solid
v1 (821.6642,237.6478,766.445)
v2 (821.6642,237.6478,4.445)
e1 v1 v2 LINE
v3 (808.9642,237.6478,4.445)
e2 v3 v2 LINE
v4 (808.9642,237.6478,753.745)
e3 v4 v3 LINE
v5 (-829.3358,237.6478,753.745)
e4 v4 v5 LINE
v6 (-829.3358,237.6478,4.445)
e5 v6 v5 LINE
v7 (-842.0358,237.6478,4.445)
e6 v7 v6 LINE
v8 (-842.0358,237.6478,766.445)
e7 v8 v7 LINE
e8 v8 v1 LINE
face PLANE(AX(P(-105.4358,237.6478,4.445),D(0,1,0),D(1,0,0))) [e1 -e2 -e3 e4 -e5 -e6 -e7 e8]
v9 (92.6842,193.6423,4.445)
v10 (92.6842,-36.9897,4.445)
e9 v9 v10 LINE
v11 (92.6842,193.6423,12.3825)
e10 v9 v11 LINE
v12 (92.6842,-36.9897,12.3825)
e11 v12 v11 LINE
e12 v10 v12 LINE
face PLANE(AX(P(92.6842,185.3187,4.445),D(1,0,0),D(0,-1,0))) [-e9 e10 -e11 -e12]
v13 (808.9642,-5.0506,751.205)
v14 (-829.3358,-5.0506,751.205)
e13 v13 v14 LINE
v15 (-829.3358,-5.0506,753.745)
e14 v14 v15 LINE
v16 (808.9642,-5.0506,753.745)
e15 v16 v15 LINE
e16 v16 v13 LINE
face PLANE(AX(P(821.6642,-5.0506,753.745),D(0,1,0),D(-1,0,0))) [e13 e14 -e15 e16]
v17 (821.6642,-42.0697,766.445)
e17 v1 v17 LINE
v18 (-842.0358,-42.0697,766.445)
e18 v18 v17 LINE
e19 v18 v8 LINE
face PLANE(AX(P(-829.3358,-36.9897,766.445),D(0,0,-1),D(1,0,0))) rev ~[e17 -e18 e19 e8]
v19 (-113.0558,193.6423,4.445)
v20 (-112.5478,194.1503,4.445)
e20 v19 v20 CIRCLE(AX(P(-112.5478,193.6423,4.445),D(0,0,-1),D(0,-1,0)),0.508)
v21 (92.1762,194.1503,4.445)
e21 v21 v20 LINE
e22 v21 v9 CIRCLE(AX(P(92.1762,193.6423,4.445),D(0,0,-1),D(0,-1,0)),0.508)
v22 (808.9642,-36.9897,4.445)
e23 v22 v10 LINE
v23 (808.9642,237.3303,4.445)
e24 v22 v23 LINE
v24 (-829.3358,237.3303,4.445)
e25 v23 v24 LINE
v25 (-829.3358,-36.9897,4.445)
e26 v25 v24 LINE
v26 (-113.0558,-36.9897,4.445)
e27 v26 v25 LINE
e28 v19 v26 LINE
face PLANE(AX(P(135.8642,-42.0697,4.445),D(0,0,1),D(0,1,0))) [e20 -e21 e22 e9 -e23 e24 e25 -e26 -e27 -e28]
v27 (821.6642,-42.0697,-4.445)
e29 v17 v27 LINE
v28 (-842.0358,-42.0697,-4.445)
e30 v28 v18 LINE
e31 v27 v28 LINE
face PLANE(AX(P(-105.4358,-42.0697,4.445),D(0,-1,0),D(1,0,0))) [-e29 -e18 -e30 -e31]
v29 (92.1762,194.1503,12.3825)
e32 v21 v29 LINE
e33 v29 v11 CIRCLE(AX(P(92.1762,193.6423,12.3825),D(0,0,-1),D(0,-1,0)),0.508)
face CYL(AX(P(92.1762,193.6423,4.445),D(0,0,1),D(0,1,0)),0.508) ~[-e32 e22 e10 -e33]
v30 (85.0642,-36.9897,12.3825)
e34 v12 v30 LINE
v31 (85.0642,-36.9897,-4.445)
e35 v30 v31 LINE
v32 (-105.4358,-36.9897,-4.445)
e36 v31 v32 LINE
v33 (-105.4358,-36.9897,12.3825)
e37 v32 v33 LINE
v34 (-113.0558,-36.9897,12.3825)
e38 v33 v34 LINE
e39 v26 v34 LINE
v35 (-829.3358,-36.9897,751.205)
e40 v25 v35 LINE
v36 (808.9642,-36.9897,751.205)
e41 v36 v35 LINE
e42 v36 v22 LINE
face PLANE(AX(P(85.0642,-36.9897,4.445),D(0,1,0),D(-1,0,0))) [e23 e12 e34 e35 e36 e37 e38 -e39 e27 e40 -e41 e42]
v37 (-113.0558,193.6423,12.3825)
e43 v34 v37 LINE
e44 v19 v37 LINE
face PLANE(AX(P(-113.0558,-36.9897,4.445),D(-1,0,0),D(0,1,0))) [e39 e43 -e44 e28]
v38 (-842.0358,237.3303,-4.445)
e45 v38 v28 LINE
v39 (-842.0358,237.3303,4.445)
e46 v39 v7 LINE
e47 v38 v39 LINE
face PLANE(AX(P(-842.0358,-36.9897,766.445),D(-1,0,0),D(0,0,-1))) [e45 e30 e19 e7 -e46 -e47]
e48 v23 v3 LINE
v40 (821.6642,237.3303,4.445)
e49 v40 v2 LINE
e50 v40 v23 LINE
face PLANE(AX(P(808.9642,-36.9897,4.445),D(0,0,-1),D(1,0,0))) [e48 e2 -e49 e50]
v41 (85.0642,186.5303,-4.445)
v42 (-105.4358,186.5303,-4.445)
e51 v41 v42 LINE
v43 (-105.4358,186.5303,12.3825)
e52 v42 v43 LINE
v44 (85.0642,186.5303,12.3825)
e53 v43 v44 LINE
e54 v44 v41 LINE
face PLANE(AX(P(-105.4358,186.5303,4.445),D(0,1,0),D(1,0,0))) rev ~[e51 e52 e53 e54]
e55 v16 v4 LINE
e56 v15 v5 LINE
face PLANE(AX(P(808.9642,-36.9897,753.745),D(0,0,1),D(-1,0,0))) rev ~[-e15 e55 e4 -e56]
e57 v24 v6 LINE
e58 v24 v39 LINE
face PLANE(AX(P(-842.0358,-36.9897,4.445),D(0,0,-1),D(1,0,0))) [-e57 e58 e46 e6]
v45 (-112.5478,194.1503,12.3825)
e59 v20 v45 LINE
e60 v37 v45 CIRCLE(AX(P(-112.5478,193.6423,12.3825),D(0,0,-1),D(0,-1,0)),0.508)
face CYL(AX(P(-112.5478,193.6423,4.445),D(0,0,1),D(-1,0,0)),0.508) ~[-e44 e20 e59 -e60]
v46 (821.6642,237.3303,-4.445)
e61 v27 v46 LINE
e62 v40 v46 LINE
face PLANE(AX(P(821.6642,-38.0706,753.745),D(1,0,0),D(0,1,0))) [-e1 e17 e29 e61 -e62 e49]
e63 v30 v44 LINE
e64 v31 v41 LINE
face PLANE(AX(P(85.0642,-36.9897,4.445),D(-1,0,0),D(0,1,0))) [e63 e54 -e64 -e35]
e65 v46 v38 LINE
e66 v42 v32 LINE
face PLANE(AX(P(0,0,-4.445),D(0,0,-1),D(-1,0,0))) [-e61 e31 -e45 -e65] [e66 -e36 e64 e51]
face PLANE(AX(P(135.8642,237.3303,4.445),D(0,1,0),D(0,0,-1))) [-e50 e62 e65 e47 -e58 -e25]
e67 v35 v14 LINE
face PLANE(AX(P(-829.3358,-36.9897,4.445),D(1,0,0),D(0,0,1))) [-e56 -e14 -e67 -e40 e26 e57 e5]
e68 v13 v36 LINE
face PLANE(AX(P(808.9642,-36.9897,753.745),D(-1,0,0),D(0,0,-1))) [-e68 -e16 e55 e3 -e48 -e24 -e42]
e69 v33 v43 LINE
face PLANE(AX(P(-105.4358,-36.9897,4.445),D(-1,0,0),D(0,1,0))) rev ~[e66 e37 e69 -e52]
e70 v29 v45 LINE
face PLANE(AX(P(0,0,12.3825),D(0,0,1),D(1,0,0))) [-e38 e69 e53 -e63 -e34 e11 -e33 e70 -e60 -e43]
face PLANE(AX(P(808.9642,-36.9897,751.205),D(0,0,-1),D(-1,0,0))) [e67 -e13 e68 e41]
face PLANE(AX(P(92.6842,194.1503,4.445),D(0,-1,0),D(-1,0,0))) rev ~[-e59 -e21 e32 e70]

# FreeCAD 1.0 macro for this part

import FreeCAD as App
import Part
import Sketcher
from FreeCAD import Vector
Q = App.Units.Quantity


def edges_at(feature, points):
    """Names of the edges that pass closest to the given points."""
    edges = feature.Shape.Edges
    near = lambda p: min(range(len(edges)), key=lambda i: edges[i].distToShape(Part.Vertex(*p))[0])
    return sorted({f"Edge{near(p) + 1}" for p in points})

doc = App.newDocument("Part")
body = doc.addObject("PartDesign::Body", "Body")

# Sketch on XY plane
sketch1 = body.newObject("Sketcher::SketchObject", "Sketch")
sketch1.AttachmentSupport = (doc.getObject("XY_Plane"), [""])
sketch1.MapMode = "FlatFace"
sketch1.addGeometry([
    Part.LineSegment(Vector(-156.2358, -42.0697, 0), Vector(-105.4358, -42.0697, 0)),  # 0
    Part.LineSegment(Vector(-105.4358, -42.0697, 0), Vector(-105.4358, 186.5303, 0)),  # 1
    Part.LineSegment(Vector(-105.4358, 186.5303, 0), Vector(85.0642, 186.5303, 0)),  # 2
    Part.LineSegment(Vector(85.0642, 186.5303, 0), Vector(85.0642, -42.0697, 0)),  # 3
    Part.LineSegment(Vector(85.0642, -42.0697, 0), Vector(135.8642, -42.0697, 0)),  # 4
    Part.LineSegment(Vector(135.8642, -42.0697, 0), Vector(135.8642, 237.3303, 0)),  # 5
    Part.LineSegment(Vector(135.8642, 237.3303, 0), Vector(-156.2358, 237.3303, 0)),  # 6
    Part.LineSegment(Vector(-156.2358, 237.3303, 0), Vector(-156.2358, -42.0697, 0)),  # 7
], False)
sketch1.addConstraint([
    Sketcher.Constraint("Coincident", 0, 2, 1, 1),
    Sketcher.Constraint("Coincident", 1, 2, 2, 1),
    Sketcher.Constraint("Coincident", 2, 2, 3, 1),
    Sketcher.Constraint("Coincident", 3, 2, 4, 1),
    Sketcher.Constraint("Coincident", 4, 2, 5, 1),
    Sketcher.Constraint("Coincident", 5, 2, 6, 1),
    Sketcher.Constraint("Coincident", 6, 2, 7, 1),
    Sketcher.Constraint("Coincident", 7, 2, 0, 1),
    Sketcher.Constraint("Horizontal", 0),
    Sketcher.Constraint("Vertical", 1),
    Sketcher.Constraint("Horizontal", 2),
    Sketcher.Constraint("Vertical", 3),
    Sketcher.Constraint("Horizontal", 4),
    Sketcher.Constraint("Vertical", 5),
    Sketcher.Constraint("Horizontal", 6),
    Sketcher.Constraint("Vertical", 7),
    Sketcher.Constraint("Horizontal", 0, 2, 3, 2),
    Sketcher.Constraint("Equal", 0, 4),
    Sketcher.Constraint("DistanceX", 0, 1, 0, 2, Q("2 in")),
    Sketcher.Constraint("DistanceY", 1, 1, 1, 2, Q("9 in")),
    Sketcher.Constraint("DistanceY", 5, 1, 5, 2, Q("11 in")),
    Sketcher.Constraint("DistanceX", 2, 1, 2, 2, Q("7.5 in")),
    Sketcher.Constraint("DistanceX", 0, 2, -1, 1, 105.4358),
    Sketcher.Constraint("DistanceY", 0, 2, -1, 1, 42.0697),
])
pad1 = body.newObject("PartDesign::Pad", "Pad")
pad1.Profile = sketch1
pad1.Length = Q("0.35 in")
pad1.Midplane = True

# Sketch on YZ plane
sketch2 = body.newObject("Sketcher::SketchObject", "Sketch001")
sketch2.AttachmentSupport = (doc.getObject("YZ_Plane"), [""])
sketch2.MapMode = "FlatFace"
sketch2.AttachmentOffset = App.Placement(Vector(0, 0, -156.2358), App.Rotation())
sketch2.addGeometry([
    Part.LineSegment(Vector(237.3303, 4.445, 0), Vector(237.3303, -4.445, 0)),
    Part.LineSegment(Vector(237.3303, -4.445, 0), Vector(-42.0697, -4.445, 0)),
    Part.LineSegment(Vector(-42.0697, -4.445, 0), Vector(-42.0697, 4.445, 0)),
    Part.LineSegment(Vector(-42.0697, 4.445, 0), Vector(237.3303, 4.445, 0)),
], False)
sketch2.addConstraint([
    Sketcher.Constraint("Coincident", 0, 2, 1, 1),
    Sketcher.Constraint("Coincident", 1, 2, 2, 1),
    Sketcher.Constraint("Coincident", 2, 2, 3, 1),
    Sketcher.Constraint("Coincident", 3, 2, 0, 1),
    Sketcher.Constraint("Vertical", 0),
    Sketcher.Constraint("Horizontal", 1),
    Sketcher.Constraint("Vertical", 2),
    Sketcher.Constraint("Horizontal", 3),
    Sketcher.Constraint("DistanceX", 1, 2, 1, 1, Q("11 in")),
    Sketcher.Constraint("DistanceY", 0, 2, 0, 1, Q("0.35 in")),
    Sketcher.Constraint("DistanceY", 0, 2, -1, 1, Q("0.175 in")),
    Sketcher.Constraint("DistanceX", -1, 1, 0, 2, 237.3303),
])
pad2 = body.newObject("PartDesign::Pad", "Pad001")
pad2.Profile = sketch2
pad2.Length = Q("27 in")
pad2.Reversed = True

# Sketch on YZ plane
sketch3 = body.newObject("Sketcher::SketchObject", "Sketch002")
sketch3.AttachmentSupport = (doc.getObject("YZ_Plane"), [""])
sketch3.MapMode = "FlatFace"
sketch3.AttachmentOffset = App.Placement(Vector(0, 0, 135.8642), App.Rotation())
sketch3.addGeometry([
    Part.LineSegment(Vector(237.3303, 4.445, 0), Vector(-42.0697, 4.445, 0)),
    Part.LineSegment(Vector(-42.0697, 4.445, 0), Vector(-42.0697, -4.445, 0)),
    Part.LineSegment(Vector(-42.0697, -4.445, 0), Vector(237.3303, -4.445, 0)),
    Part.LineSegment(Vector(237.3303, -4.445, 0), Vector(237.3303, 4.445, 0)),
], False)
sketch3.addConstraint([
    Sketcher.Constraint("Coincident", 0, 2, 1, 1),
    Sketcher.Constraint("Coincident", 1, 2, 2, 1),
    Sketcher.Constraint("Coincident", 2, 2, 3, 1),
    Sketcher.Constraint("Coincident", 3, 2, 0, 1),
    Sketcher.Constraint("Horizontal", 0),
    Sketcher.Constraint("Vertical", 1),
    Sketcher.Constraint("Horizontal", 2),
    Sketcher.Constraint("Vertical", 3),
    Sketcher.Constraint("DistanceX", 0, 2, 0, 1, Q("11 in")),
    Sketcher.Constraint("DistanceY", 1, 2, 1, 1, Q("0.35 in")),
    Sketcher.Constraint("DistanceY", -1, 1, 0, 2, Q("0.175 in")),
    Sketcher.Constraint("DistanceX", 0, 2, -1, 1, 42.0697),
])
pad3 = body.newObject("PartDesign::Pad", "Pad002")
pad3.Profile = sketch3
pad3.Length = Q("27 in")

# Sketch on XY plane
sketch4 = body.newObject("Sketcher::SketchObject", "Sketch003")
sketch4.AttachmentSupport = (doc.getObject("XY_Plane"), [""])
sketch4.MapMode = "FlatFace"
sketch4.AttachmentOffset = App.Placement(Vector(0, 0, 0.175 * 25.4), App.Rotation())
sketch4.addGeometry([
    Part.LineSegment(Vector(821.6642, -36.9897, 0), Vector(-842.0358, -36.9897, 0)),
    Part.LineSegment(Vector(-842.0358, -36.9897, 0), Vector(-842.0358, -42.0697, 0)),
    Part.LineSegment(Vector(-842.0358, -42.0697, 0), Vector(821.6642, -42.0697, 0)),
    Part.LineSegment(Vector(821.6642, -42.0697, 0), Vector(821.6642, -36.9897, 0)),
], False)
sketch4.addConstraint([
    Sketcher.Constraint("Coincident", 0, 2, 1, 1),
    Sketcher.Constraint("Coincident", 1, 2, 2, 1),
    Sketcher.Constraint("Coincident", 2, 2, 3, 1),
    Sketcher.Constraint("Coincident", 3, 2, 0, 1),
    Sketcher.Constraint("Horizontal", 0),
    Sketcher.Constraint("Vertical", 1),
    Sketcher.Constraint("Horizontal", 2),
    Sketcher.Constraint("Vertical", 3),
    Sketcher.Constraint("DistanceY", 1, 2, 1, 1, Q("0.2 in")),
    Sketcher.Constraint("DistanceX", 0, 2, 0, 1, Q("65.5 in")),
    Sketcher.Constraint("DistanceX", 0, 2, -1, 1, 842.0358),
    Sketcher.Constraint("DistanceY", 0, 2, -1, 1, 36.9897),
])
pad4 = body.newObject("PartDesign::Pad", "Pad003")
pad4.Profile = sketch4
pad4.Length = Q("30 in")

# Sketch on XZ plane
sketch5 = body.newObject("Sketcher::SketchObject", "Sketch004")
sketch5.AttachmentSupport = (doc.getObject("XZ_Plane"), [""])
sketch5.MapMode = "FlatFace"
sketch5.AttachmentOffset = App.Placement(Vector(0, 0, 36.9897), App.Rotation())
sketch5.addGeometry([
    Part.LineSegment(Vector(-829.3358, 4.445, 0), Vector(-842.0358, 4.445, 0)),  # 0
    Part.LineSegment(Vector(-842.0358, 4.445, 0), Vector(-842.0358, 766.445, 0)),  # 1
    Part.LineSegment(Vector(-842.0358, 766.445, 0), Vector(821.6642, 766.445, 0)),  # 2
    Part.LineSegment(Vector(821.6642, 766.445, 0), Vector(821.6642, 4.445, 0)),  # 3
    Part.LineSegment(Vector(821.6642, 4.445, 0), Vector(808.9642, 4.445, 0)),  # 4
    Part.LineSegment(Vector(808.9642, 4.445, 0), Vector(808.9642, 753.745, 0)),  # 5
    Part.LineSegment(Vector(808.9642, 753.745, 0), Vector(-829.3358, 753.745, 0)),  # 6
    Part.LineSegment(Vector(-829.3358, 753.745, 0), Vector(-829.3358, 4.445, 0)),  # 7
], False)
sketch5.addConstraint([
    Sketcher.Constraint("Coincident", 0, 2, 1, 1),
    Sketcher.Constraint("Coincident", 1, 2, 2, 1),
    Sketcher.Constraint("Coincident", 2, 2, 3, 1),
    Sketcher.Constraint("Coincident", 3, 2, 4, 1),
    Sketcher.Constraint("Coincident", 4, 2, 5, 1),
    Sketcher.Constraint("Coincident", 5, 2, 6, 1),
    Sketcher.Constraint("Coincident", 6, 2, 7, 1),
    Sketcher.Constraint("Coincident", 7, 2, 0, 1),
    Sketcher.Constraint("Horizontal", 0),
    Sketcher.Constraint("Vertical", 1),
    Sketcher.Constraint("Horizontal", 2),
    Sketcher.Constraint("Vertical", 3),
    Sketcher.Constraint("Horizontal", 4),
    Sketcher.Constraint("Vertical", 5),
    Sketcher.Constraint("Horizontal", 6),
    Sketcher.Constraint("Vertical", 7),
    Sketcher.Constraint("Horizontal", 0, 2, 3, 2),
    Sketcher.Constraint("Equal", 0, 4),
    Sketcher.Constraint("DistanceX", 0, 2, 0, 1, Q("0.5 in")),
    Sketcher.Constraint("DistanceY", 5, 2, 2, 2, Q("0.5 in")),
    Sketcher.Constraint("DistanceY", 1, 1, 1, 2, Q("30 in")),
    Sketcher.Constraint("DistanceX", 2, 1, 2, 2, Q("65.5 in")),
    Sketcher.Constraint("DistanceY", -1, 1, 0, 2, Q("0.175 in")),
    Sketcher.Constraint("DistanceX", 0, 2, -1, 1, 842.0358),
])
pad5 = body.newObject("PartDesign::Pad", "Pad004")
pad5.Profile = sketch5
pad5.Length = Q("10.8125 in")
pad5.Reversed = True

# Sketch on XY plane
sketch6 = body.newObject("Sketcher::SketchObject", "Sketch005")
sketch6.AttachmentSupport = (doc.getObject("XY_Plane"), [""])
sketch6.MapMode = "FlatFace"
sketch6.AttachmentOffset = App.Placement(Vector(0, 0, 0.175 * 25.4), App.Rotation())
sketch6.addGeometry([
    Part.LineSegment(Vector(-113.0558, -36.9897, 0), Vector(-105.4358, -36.9897, 0)),  # 0
    Part.LineSegment(Vector(-105.4358, -36.9897, 0), Vector(-105.4358, 186.5303, 0)),  # 1
    Part.LineSegment(Vector(-105.4358, 186.5303, 0), Vector(85.0642, 186.5303, 0)),  # 2
    Part.LineSegment(Vector(85.0642, 186.5303, 0), Vector(85.0642, -36.9897, 0)),  # 3
    Part.LineSegment(Vector(85.0642, -36.9897, 0), Vector(92.6842, -36.9897, 0)),  # 4
    Part.LineSegment(Vector(92.6842, -36.9897, 0), Vector(92.6842, 194.1503, 0)),  # 5
    Part.LineSegment(Vector(92.6842, 194.1503, 0), Vector(-113.0558, 194.1503, 0)),  # 6
    Part.LineSegment(Vector(-113.0558, 194.1503, 0), Vector(-113.0558, -36.9897, 0)),  # 7
], False)
sketch6.addConstraint([
    Sketcher.Constraint("Coincident", 0, 2, 1, 1),
    Sketcher.Constraint("Coincident", 1, 2, 2, 1),
    Sketcher.Constraint("Coincident", 2, 2, 3, 1),
    Sketcher.Constraint("Coincident", 3, 2, 4, 1),
    Sketcher.Constraint("Coincident", 4, 2, 5, 1),
    Sketcher.Constraint("Coincident", 5, 2, 6, 1),
    Sketcher.Constraint("Coincident", 6, 2, 7, 1),
    Sketcher.Constraint("Coincident", 7, 2, 0, 1),
    Sketcher.Constraint("Horizontal", 0),
    Sketcher.Constraint("Vertical", 1),
    Sketcher.Constraint("Horizontal", 2),
    Sketcher.Constraint("Vertical", 3),
    Sketcher.Constraint("Horizontal", 4),
    Sketcher.Constraint("Vertical", 5),
    Sketcher.Constraint("Horizontal", 6),
    Sketcher.Constraint("Vertical", 7),
    Sketcher.Constraint("Horizontal", 0, 2, 3, 2),
    Sketcher.Constraint("Equal", 0, 4),
    Sketcher.Constraint("DistanceX", 0, 1, 0, 2, Q("0.3 in")),
    Sketcher.Constraint("DistanceY", 2, 2, 5, 2, Q("0.3 in")),
    Sketcher.Constraint("DistanceX", 2, 1, 2, 2, Q("7.5 in")),
    Sketcher.Constraint("DistanceY", 1, 1, 1, 2, Q("8.8 in")),
    Sketcher.Constraint("DistanceX", 0, 2, -1, 1, 105.4358),
    Sketcher.Constraint("DistanceY", 0, 2, -1, 1, 36.9897),
])
pad6 = body.newObject("PartDesign::Pad", "Pad005")
pad6.Profile = sketch6
pad6.Length = Q("0.3125 in")
doc.recompute()

fillet = body.newObject("PartDesign::Fillet", "Fillet")
fillet.Base = (pad6, edges_at(pad6, [(-113.056, 194.15, 8.414)]))
fillet.Radius = Q("0.02 in")
doc.recompute()

fillet2 = body.newObject("PartDesign::Fillet", "Fillet001")
fillet2.Base = (fillet, edges_at(fillet, [(92.684, 194.15, 8.414)]))
fillet2.Radius = Q("0.02 in")

# Sketch on XY plane
sketch7 = body.newObject("Sketcher::SketchObject", "Sketch006")
sketch7.AttachmentSupport = (doc.getObject("XY_Plane"), [""])
sketch7.MapMode = "FlatFace"
sketch7.AttachmentOffset = App.Placement(Vector(0, 0, 0.175 * 25.4), App.Rotation())
sketch7.addGeometry([
    Part.LineSegment(Vector(-105.4358, -36.9897, 0), Vector(85.0642, -36.9897, 0)),
    Part.LineSegment(Vector(85.0642, -36.9897, 0), Vector(85.0642, -42.0697, 0)),
    Part.LineSegment(Vector(85.0642, -42.0697, 0), Vector(-105.4358, -42.0697, 0)),
    Part.LineSegment(Vector(-105.4358, -42.0697, 0), Vector(-105.4358, -36.9897, 0)),
], False)
sketch7.addConstraint([
    Sketcher.Constraint("Coincident", 0, 2, 1, 1),
    Sketcher.Constraint("Coincident", 1, 2, 2, 1),
    Sketcher.Constraint("Coincident", 2, 2, 3, 1),
    Sketcher.Constraint("Coincident", 3, 2, 0, 1),
    Sketcher.Constraint("Horizontal", 0),
    Sketcher.Constraint("Vertical", 1),
    Sketcher.Constraint("Horizontal", 2),
    Sketcher.Constraint("Vertical", 3),
    Sketcher.Constraint("DistanceX", 0, 1, 0, 2, Q("7.5 in")),
    Sketcher.Constraint("DistanceY", 1, 2, 1, 1, Q("0.2 in")),
    Sketcher.Constraint("DistanceX", -1, 1, 0, 2, 85.0642),
    Sketcher.Constraint("DistanceY", 0, 2, -1, 1, 36.9897),
])
pad7 = body.newObject("PartDesign::Pad", "Pad006")
pad7.Profile = sketch7
pad7.Length = Q("0.35 in")
pad7.Reversed = True

# Sketch on XY plane
sketch8 = body.newObject("Sketcher::SketchObject", "Sketch007")
sketch8.AttachmentSupport = (doc.getObject("XY_Plane"), [""])
sketch8.MapMode = "FlatFace"
sketch8.AttachmentOffset = App.Placement(Vector(0, 0, 29.675 * 25.4), App.Rotation())
sketch8.addGeometry([
    Part.LineSegment(Vector(821.6642, -5.0506, 0), Vector(821.6642, -38.0706, 0)),
    Part.LineSegment(Vector(821.6642, -38.0706, 0), Vector(-842.0358, -38.0706, 0)),
    Part.LineSegment(Vector(-842.0358, -38.0706, 0), Vector(-842.0358, -5.0506, 0)),
    Part.LineSegment(Vector(-842.0358, -5.0506, 0), Vector(821.6642, -5.0506, 0)),
], False)
sketch8.addConstraint([
    Sketcher.Constraint("Coincident", 0, 2, 1, 1),
    Sketcher.Constraint("Coincident", 1, 2, 2, 1),
    Sketcher.Constraint("Coincident", 2, 2, 3, 1),
    Sketcher.Constraint("Coincident", 3, 2, 0, 1),
    Sketcher.Constraint("Vertical", 0),
    Sketcher.Constraint("Horizontal", 1),
    Sketcher.Constraint("Vertical", 2),
    Sketcher.Constraint("Horizontal", 3),
    Sketcher.Constraint("DistanceY", 0, 2, 0, 1, Q("1.3 in")),
    Sketcher.Constraint("DistanceX", 1, 2, 1, 1, Q("65.5 in")),
    Sketcher.Constraint("DistanceX", -1, 1, 0, 2, 821.6642),
    Sketcher.Constraint("DistanceY", 0, 2, -1, 1, 38.0706),
])
pad8 = body.newObject("PartDesign::Pad", "Pad007")
pad8.Profile = sketch8
pad8.Length = Q("0.1 in")
pad8.Reversed = True

doc.recompute()
